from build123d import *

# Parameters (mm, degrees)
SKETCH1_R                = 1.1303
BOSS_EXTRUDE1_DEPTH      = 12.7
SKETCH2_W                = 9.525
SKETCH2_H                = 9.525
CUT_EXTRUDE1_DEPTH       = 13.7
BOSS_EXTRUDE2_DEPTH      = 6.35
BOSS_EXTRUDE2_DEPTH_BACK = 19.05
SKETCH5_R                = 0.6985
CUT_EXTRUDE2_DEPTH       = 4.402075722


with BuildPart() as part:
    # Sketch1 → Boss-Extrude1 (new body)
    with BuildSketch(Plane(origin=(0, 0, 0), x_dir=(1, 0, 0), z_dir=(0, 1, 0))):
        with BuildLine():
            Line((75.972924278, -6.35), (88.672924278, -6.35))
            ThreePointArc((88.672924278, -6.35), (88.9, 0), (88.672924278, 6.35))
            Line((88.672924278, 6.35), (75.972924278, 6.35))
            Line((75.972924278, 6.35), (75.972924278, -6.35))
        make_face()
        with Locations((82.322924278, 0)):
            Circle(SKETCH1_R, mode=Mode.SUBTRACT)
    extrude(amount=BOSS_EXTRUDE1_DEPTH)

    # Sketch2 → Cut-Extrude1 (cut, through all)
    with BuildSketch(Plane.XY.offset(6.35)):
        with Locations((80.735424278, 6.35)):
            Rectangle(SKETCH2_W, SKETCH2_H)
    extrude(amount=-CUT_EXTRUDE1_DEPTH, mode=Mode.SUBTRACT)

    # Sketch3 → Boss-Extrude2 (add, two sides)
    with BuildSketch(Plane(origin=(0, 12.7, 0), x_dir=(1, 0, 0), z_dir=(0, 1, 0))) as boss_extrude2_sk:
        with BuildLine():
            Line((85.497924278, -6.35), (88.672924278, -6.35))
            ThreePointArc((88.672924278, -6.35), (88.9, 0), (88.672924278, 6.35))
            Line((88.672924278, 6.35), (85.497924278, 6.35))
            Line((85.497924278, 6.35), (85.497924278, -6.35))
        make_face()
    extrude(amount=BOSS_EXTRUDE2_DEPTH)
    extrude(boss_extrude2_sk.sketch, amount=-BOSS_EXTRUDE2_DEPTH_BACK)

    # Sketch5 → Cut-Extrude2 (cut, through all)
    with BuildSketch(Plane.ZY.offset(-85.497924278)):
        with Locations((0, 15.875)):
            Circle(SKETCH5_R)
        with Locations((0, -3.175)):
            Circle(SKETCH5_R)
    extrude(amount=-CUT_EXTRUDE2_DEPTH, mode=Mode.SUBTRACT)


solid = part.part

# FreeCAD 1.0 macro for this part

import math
import FreeCAD as App
import Part
import Sketcher
from FreeCAD import Vector
Q = App.Units.Quantity

doc = App.newDocument("Part")
body = doc.addObject("PartDesign::Body", "Body")

sketch1 = body.newObject("Sketcher::SketchObject", "Sketch")
sketch1.AttachmentSupport = (doc.getObject("XZ_Plane"), [""])
sketch1.MapMode = "FlatFace"
sketch1.addGeometry([
    Part.LineSegment(Vector(76, 6.3, 0), Vector(88.7, 6.3, 0)),
    Part.ArcOfCircle(Part.Circle(Vector(0, 0, 0), Vector(0, 0, 1), 88.9), math.radians(-4.1), math.radians(4.1)),
    Part.LineSegment(Vector(88.7, -6.3, 0), Vector(76, -6.3, 0)),
    Part.LineSegment(Vector(76, -6.3, 0), Vector(76, 6.3, 0)),
    Part.Circle(Vector(82.3, 0, 0), Vector(0, 0, 1), 1.1),
], False)
sketch1.addConstraint([
    Sketcher.Constraint("Coincident", 0, 2, 1, 2),
    Sketcher.Constraint("Coincident", 1, 1, 2, 1),
    Sketcher.Constraint("Coincident", 2, 2, 3, 1),
    Sketcher.Constraint("Coincident", 3, 2, 0, 1),
    Sketcher.Constraint("Horizontal", 0),
    Sketcher.Constraint("Horizontal", 2),
    Sketcher.Constraint("Vertical", 3),
    Sketcher.Constraint("Coincident", 1, 3, -1, 1),
    Sketcher.Constraint("PointOnObject", 4, 3, -1),
    Sketcher.Constraint("Vertical", 0, 2, 1, 1),
    Sketcher.Constraint("Equal", 2, 3),
    Sketcher.Constraint("Radius", 1, Q("3.5 in")),
    Sketcher.Constraint("Diameter", 4, Q("0.089 in")),
    Sketcher.Constraint("DistanceX", 0, 1, 0, 2, Q("0.5 in")),
    Sketcher.Constraint("DistanceX", 4, 3, 0, 2, Q("0.25 in")),
])
pad1 = body.newObject("PartDesign::Pad", "Pad")
pad1.Profile = sketch1
pad1.Length = Q("0.5 in")
pad1.Reversed = True

sketch2 = body.newObject("Sketcher::SketchObject", "Sketch001")
sketch2.AttachmentSupport = (doc.getObject("XY_Plane"), [""])
sketch2.MapMode = "FlatFace"
sketch2.AttachmentOffset = App.Placement(Vector(0, 0, 0.25 * 25.4), App.Rotation())
sketch2.addGeometry([
    Part.LineSegment(Vector(76, 11, 0), Vector(76, 2, 0)),
    Part.LineSegment(Vector(76, 2, 0), Vector(85, 2, 0)),
    Part.LineSegment(Vector(85, 2, 0), Vector(85, 11, 0)),
    Part.LineSegment(Vector(85, 11, 0), Vector(76, 11, 0)),
], False)
sketch2.addConstraint([
    Sketcher.Constraint("Coincident", 0, 2, 1, 1),
    Sketcher.Constraint("Coincident", 1, 2, 2, 1),
    Sketcher.Constraint("Coincident", 2, 2, 3, 1),
    Sketcher.Constraint("Coincident", 3, 2, 0, 1),
    Sketcher.Constraint("Vertical", 0),
    Sketcher.Constraint("Horizontal", 1),
    Sketcher.Constraint("Vertical", 2),
    Sketcher.Constraint("Horizontal", 3),
    Sketcher.Constraint("Equal", 3, 0),
    Sketcher.Constraint("DistanceX", 1, 1, 1, 2, Q("0.375 in")),
    Sketcher.Constraint("DistanceY", -1, 1, 0, 2, Q("0.0625 in")),
    Sketcher.Constraint("DistanceX", -1, 1, 0, 2, 75.972924),
])
pocket1 = body.newObject("PartDesign::Pocket", "Pocket")
pocket1.Profile = sketch2
pocket1.Type = "ThroughAll"

sketch3 = body.newObject("Sketcher::SketchObject", "Sketch002")
sketch3.AttachmentSupport = (doc.getObject("XZ_Plane"), [""])
sketch3.MapMode = "FlatFace"
sketch3.AttachmentOffset = App.Placement(Vector(0, 0, -0.5 * 25.4), App.Rotation())
sketch3.addGeometry([
    Part.LineSegment(Vector(85.5, 6.3, 0), Vector(88.7, 6.3, 0)),
    Part.ArcOfCircle(Part.Circle(Vector(0, 0, 0), Vector(0, 0, 1), 88.9), math.radians(-4.1), math.radians(4.1)),
    Part.LineSegment(Vector(88.7, -6.3, 0), Vector(85.5, -6.3, 0)),
    Part.LineSegment(Vector(85.5, -6.3, 0), Vector(85.5, 6.3, 0)),
], False)
sketch3.addConstraint([
    Sketcher.Constraint("Coincident", 0, 2, 1, 2),
    Sketcher.Constraint("Coincident", 1, 1, 2, 1),
    Sketcher.Constraint("Coincident", 2, 2, 3, 1),
    Sketcher.Constraint("Coincident", 3, 2, 0, 1),
    Sketcher.Constraint("Horizontal", 0),
    Sketcher.Constraint("Horizontal", 2),
    Sketcher.Constraint("Vertical", 3),
    Sketcher.Constraint("Coincident", 1, 3, -1, 1),
    Sketcher.Constraint("Vertical", 0, 2, 1, 1),
    Sketcher.Constraint("Radius", 1, Q("3.5 in")),
    Sketcher.Constraint("DistanceY", 3, 1, 3, 2, Q("0.5 in")),
    Sketcher.Constraint("DistanceX", 0, 1, 0, 2, Q("0.125 in")),
])
pad2 = body.newObject("PartDesign::Pad", "Pad001")
pad2.Profile = sketch3
pad2.Type = "TwoLengths"
pad2.Length = Q("0.25 in")
pad2.Length2 = Q("0.75 in")
pad2.Reversed = True

sketch4 = body.newObject("Sketcher::SketchObject", "Sketch003")
sketch4.AttachmentSupport = (doc.getObject("YZ_Plane"), [""])
sketch4.MapMode = "FlatFace"
sketch4.AttachmentOffset = App.Placement(Vector(0, 0, 85.497924), App.Rotation())
sketch4.addGeometry([
    Part.Circle(Vector(15.9, 0, 0), Vector(0, 0, 1), 0.7),
    Part.Circle(Vector(-3.2, 0, 0), Vector(0, 0, 1), 0.7),
], False)
sketch4.addConstraint([
    Sketcher.Constraint("Equal", 0, 1),
    Sketcher.Constraint("PointOnObject", 0, 3, -1),
    Sketcher.Constraint("PointOnObject", 1, 3, -1),
    Sketcher.Constraint("Diameter", 0, Q("0.055 in")),
    Sketcher.Constraint("DistanceX", 1, 3, 0, 3, Q("0.75 in")),
    Sketcher.Constraint("DistanceX", -1, 1, 0, 3, Q("0.625 in")),
])
pocket2 = body.newObject("PartDesign::Pocket", "Pocket001")
pocket2.Profile = sketch4
pocket2.Type = "ThroughAll"
pocket2.Reversed = True

doc.recompute()
